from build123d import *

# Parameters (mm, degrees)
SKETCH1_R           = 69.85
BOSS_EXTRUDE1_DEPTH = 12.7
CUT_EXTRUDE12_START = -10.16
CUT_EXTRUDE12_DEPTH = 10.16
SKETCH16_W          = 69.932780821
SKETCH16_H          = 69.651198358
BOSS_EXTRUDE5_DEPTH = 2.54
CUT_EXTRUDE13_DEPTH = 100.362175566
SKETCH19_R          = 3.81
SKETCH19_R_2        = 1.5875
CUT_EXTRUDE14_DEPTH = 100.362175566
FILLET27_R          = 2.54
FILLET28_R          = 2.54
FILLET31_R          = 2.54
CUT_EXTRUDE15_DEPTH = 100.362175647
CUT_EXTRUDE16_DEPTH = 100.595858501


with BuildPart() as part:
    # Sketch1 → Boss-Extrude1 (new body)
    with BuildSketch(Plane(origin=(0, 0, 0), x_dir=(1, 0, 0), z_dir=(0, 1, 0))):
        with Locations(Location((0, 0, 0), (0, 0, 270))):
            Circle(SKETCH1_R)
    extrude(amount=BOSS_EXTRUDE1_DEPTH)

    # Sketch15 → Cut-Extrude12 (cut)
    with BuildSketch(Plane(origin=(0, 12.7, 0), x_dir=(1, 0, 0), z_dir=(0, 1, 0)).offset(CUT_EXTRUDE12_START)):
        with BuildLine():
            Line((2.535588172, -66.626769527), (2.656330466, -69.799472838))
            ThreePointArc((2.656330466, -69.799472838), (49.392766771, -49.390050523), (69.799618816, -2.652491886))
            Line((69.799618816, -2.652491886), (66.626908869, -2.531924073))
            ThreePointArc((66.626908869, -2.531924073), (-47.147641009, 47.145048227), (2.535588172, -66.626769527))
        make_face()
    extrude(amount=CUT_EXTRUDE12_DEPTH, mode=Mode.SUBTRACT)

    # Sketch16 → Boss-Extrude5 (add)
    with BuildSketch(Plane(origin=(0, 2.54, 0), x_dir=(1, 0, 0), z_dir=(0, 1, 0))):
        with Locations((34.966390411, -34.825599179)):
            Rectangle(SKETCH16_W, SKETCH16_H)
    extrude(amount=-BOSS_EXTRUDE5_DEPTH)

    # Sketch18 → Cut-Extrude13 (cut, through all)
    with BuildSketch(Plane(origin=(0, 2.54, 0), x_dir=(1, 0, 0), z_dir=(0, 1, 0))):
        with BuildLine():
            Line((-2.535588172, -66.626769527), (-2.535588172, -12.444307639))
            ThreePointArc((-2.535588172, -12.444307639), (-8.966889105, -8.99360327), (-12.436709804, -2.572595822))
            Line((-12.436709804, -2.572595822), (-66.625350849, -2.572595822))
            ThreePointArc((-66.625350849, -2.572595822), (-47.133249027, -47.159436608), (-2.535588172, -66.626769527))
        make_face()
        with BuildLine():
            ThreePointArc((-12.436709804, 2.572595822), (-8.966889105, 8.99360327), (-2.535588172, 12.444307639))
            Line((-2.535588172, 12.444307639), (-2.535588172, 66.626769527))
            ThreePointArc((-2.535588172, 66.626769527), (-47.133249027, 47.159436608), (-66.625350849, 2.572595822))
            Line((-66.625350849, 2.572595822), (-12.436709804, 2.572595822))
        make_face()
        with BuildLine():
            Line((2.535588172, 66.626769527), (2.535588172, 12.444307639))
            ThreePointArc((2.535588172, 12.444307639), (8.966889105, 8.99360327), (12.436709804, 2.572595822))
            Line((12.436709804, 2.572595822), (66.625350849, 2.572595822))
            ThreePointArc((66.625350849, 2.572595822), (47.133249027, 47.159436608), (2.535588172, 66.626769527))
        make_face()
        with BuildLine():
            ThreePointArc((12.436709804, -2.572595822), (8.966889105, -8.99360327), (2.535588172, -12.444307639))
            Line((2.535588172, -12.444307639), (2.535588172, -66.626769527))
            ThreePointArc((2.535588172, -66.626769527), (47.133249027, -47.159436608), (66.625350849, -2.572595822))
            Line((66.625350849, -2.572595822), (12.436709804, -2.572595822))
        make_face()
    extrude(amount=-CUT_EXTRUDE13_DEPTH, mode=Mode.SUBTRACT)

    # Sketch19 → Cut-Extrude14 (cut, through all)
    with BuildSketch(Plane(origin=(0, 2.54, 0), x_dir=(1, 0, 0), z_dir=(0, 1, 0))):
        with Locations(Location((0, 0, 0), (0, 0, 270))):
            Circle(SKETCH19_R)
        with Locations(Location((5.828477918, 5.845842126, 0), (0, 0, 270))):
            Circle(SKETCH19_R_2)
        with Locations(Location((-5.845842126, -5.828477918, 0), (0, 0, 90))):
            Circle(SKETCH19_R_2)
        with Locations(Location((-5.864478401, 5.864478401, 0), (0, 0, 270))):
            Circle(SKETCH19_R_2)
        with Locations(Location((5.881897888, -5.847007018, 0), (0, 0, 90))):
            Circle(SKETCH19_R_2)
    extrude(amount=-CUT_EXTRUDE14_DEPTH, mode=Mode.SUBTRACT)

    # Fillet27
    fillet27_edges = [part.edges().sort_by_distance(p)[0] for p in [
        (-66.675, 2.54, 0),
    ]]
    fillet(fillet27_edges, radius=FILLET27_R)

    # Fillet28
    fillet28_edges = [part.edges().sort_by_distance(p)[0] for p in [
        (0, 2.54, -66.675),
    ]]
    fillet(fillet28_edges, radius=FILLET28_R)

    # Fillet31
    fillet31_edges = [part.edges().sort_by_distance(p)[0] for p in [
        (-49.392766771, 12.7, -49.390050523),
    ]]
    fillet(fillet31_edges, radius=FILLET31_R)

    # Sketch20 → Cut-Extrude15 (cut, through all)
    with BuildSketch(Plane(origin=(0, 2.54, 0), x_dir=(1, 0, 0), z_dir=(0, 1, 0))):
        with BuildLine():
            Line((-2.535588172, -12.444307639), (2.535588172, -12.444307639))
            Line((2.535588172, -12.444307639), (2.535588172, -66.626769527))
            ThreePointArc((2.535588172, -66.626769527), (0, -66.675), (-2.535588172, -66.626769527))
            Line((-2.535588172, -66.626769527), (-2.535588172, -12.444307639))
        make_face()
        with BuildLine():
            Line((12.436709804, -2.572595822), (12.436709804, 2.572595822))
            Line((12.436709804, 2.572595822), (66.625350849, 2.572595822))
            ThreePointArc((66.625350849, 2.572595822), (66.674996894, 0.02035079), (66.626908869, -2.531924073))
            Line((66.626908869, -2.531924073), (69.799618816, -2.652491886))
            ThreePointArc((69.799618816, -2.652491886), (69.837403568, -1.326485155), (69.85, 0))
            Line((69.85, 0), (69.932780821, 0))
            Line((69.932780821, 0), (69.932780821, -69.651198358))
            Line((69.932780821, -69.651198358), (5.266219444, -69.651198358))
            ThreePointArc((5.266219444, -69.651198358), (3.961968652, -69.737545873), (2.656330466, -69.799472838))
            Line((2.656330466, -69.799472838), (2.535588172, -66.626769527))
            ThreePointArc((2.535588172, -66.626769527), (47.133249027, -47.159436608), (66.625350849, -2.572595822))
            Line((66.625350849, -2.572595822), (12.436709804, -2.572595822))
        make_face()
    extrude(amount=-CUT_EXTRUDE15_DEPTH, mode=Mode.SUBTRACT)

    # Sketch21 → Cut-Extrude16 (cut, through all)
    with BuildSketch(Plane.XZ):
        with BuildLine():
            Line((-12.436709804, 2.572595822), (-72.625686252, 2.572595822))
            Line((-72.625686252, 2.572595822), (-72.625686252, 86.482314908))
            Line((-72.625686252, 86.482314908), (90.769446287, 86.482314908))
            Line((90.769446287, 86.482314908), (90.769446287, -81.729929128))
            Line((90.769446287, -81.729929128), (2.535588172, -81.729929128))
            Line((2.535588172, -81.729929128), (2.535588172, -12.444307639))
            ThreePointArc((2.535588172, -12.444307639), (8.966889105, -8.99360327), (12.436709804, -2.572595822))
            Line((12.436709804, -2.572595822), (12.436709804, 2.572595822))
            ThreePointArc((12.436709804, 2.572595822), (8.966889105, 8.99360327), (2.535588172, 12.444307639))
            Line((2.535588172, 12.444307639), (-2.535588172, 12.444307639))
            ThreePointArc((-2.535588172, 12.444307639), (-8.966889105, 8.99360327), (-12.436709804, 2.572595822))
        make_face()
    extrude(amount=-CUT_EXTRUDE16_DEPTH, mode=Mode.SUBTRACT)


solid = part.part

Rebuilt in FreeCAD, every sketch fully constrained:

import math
import FreeCAD as App
import Part
import Sketcher

V = App.Vector
Q = App.Units.Quantity


def edges_at(feature, points):
    """Names of the edges that pass closest to the given points."""
    edges = feature.Shape.Edges
    near = lambda p: min(range(len(edges)), key=lambda i: edges[i].distToShape(Part.Vertex(*p))[0])
    return sorted({f"Edge{near(p) + 1}" for p in points})

doc = App.newDocument("Part")
params = doc.addObject("Spreadsheet::Sheet", "Params")
for row, (alias, value) in enumerate([
    ("sketch1_diameter", "5.5 in"),
    ("pad1_length", "0.5 in"),
    ("sketch2_radius", "2.75 in"),
    ("sketch2_radius2", "2.625 in"),
    ("pocket1_length", "0.4 in"),
    ("pad2_length", "0.1 in"),
    ("sketch4_radius", "0.5 in"),
    ("sketch4_radius2", "2.625 in"),
    ("sketch5_diameter", "0.3 in"),
    ("sketch5_diameter2", "0.125 in"),
    ("fillet_radius", "0.1 in"),
    ("fillet2_radius", "0.1 in"),
    ("fillet3_radius", "0.1 in"),
    ("sketch6_radius", "2.75 in"),
    ("sketch6_radius2", "2.625 in"),
    ("sketch7_radius", "0.5 in"),
], start=1):
    params.set(f"A{row}", alias)
    params.set(f"B{row}", "=" + value)
    params.setAlias(f"B{row}", alias)

body = doc.addObject("PartDesign::Body", "Body")

# Sketch on XZ plane
sketch1 = doc.addObject("Sketcher::SketchObject", "Sketch")
body.addObject(sketch1)
sketch1.AttachmentSupport = (doc.XZ_Plane, [""])
sketch1.MapMode = "FlatFace"
sketch1.addGeometry(Part.Circle(V(0, 0, 0), V(0, 0, 1), 70), False)
sketch1.addConstraint([
    Sketcher.Constraint("Coincident", 0, 3, -1, 1),
    Sketcher.Constraint("Diameter", 0, Q("5.5 in")),
])
sketch1.setExpression("Constraints[1]", "Params.sketch1_diameter")
pad1 = doc.addObject("PartDesign::Pad", "Pad")
body.addObject(pad1)
pad1.Profile = sketch1
pad1.setExpression("Length", "Params.pad1_length")
pad1.Reversed = True

# Sketch on XZ plane
sketch2 = doc.addObject("Sketcher::SketchObject", "Sketch001")
body.addObject(sketch2)
sketch2.AttachmentSupport = (doc.XZ_Plane, [""])
sketch2.MapMode = "FlatFace"
sketch2.AttachmentOffset = App.Placement(V(0, 0, -0.1 * 25.4), App.Rotation())
sketch2.addGeometry([
    Part.LineSegment(V(2.5, 66.6, 0), V(2.7, 69.8, 0)),
    Part.ArcOfCircle(Part.Circle(V(0, 0, 0), V(0, 0, 1), 69.9), math.radians(2), math.radians(88)),
    Part.LineSegment(V(69.8, 2.7, 0), V(66.6, 2.5, 0)),
    Part.ArcOfCircle(Part.Circle(V(0, 0, 0), V(0, 0, 1), 66.7), math.radians(88), math.radians(362)),
], False)
sketch2.addConstraint([
    Sketcher.Constraint("Coincident", 0, 2, 1, 2),
    Sketcher.Constraint("Coincident", 1, 1, 2, 1),
    Sketcher.Constraint("Coincident", 2, 2, 3, 2),
    Sketcher.Constraint("Coincident", 3, 1, 0, 1),
    Sketcher.Constraint("Coincident", 1, 3, -1, 1),
    Sketcher.Constraint("Coincident", 3, 3, -1, 1),
    Sketcher.Constraint("Radius", 1, Q("2.75 in")),
    Sketcher.Constraint("Radius", 3, Q("2.625 in")),
    Sketcher.Constraint("DistanceX", -1, 1, 0, 2, Q("2.65633 mm")),
    Sketcher.Constraint("DistanceX", -1, 1, 1, 1, Q("69.799619 mm")),
    Sketcher.Constraint("DistanceX", -1, 1, 2, 2, Q("66.626909 mm")),
    Sketcher.Constraint("DistanceX", -1, 1, 3, 1, Q("2.535588 mm")),
])
sketch2.setExpression("Constraints[6]", "Params.sketch2_radius")
sketch2.setExpression("Constraints[7]", "Params.sketch2_radius2")
pocket1 = doc.addObject("PartDesign::Pocket", "Pocket")
body.addObject(pocket1)
pocket1.Profile = sketch2
pocket1.setExpression("Length", "Params.pocket1_length")

# Sketch on XZ plane
sketch3 = doc.addObject("Sketcher::SketchObject", "Sketch002")
body.addObject(sketch3)
sketch3.AttachmentSupport = (doc.XZ_Plane, [""])
sketch3.MapMode = "FlatFace"
sketch3.AttachmentOffset = App.Placement(V(0, 0, -0.1 * 25.4), App.Rotation())
sketch3.addGeometry([
    Part.LineSegment(V(0, 0, 0), V(0, 70, 0)),
    Part.LineSegment(V(0, 70, 0), V(70, 70, 0)),
    Part.LineSegment(V(70, 70, 0), V(70, 0, 0)),
    Part.LineSegment(V(70, 0, 0), V(0, 0, 0)),
], False)
sketch3.addConstraint([
    Sketcher.Constraint("Coincident", 0, 2, 1, 1),
    Sketcher.Constraint("Coincident", 1, 2, 2, 1),
    Sketcher.Constraint("Coincident", 2, 2, 3, 1),
    Sketcher.Constraint("Coincident", 3, 2, 0, 1),
    Sketcher.Constraint("Vertical", 0),
    Sketcher.Constraint("Horizontal", 1),
    Sketcher.Constraint("Vertical", 2),
    Sketcher.Constraint("Horizontal", 3),
    Sketcher.Constraint("Coincident", 3, 2, -1, 1),
    Sketcher.Constraint("DistanceY", 0, 1, 0, 2, Q("69.651198 mm")),
    Sketcher.Constraint("DistanceX", 1, 1, 1, 2, Q("69.932781 mm")),
])
pad2 = doc.addObject("PartDesign::Pad", "Pad001")
body.addObject(pad2)
pad2.Profile = sketch3
pad2.setExpression("Length", "Params.pad2_length")

# Sketch on XZ plane
sketch4 = doc.addObject("Sketcher::SketchObject", "Sketch003")
body.addObject(sketch4)
sketch4.AttachmentSupport = (doc.XZ_Plane, [""])
sketch4.MapMode = "FlatFace"
sketch4.AttachmentOffset = App.Placement(V(0, 0, -0.1 * 25.4), App.Rotation())
sketch4.addGeometry([
    Part.LineSegment(V(-3, 67, 0), V(-3, 12, 0)),  # 0
    Part.ArcOfCircle(Part.Circle(V(0, 0, 0), V(0, 0, 1), 13), math.radians(102), math.radians(168)),  # 1
    Part.LineSegment(V(-12, 3, 0), V(-67, 3, 0)),  # 2
    Part.ArcOfCircle(Part.Circle(V(0, 0, 0), V(0, 0, 1), 67), math.radians(92), math.radians(178)),  # 3
    Part.ArcOfCircle(Part.Circle(V(0, 0, 0), V(0, 0, 1), 13), math.radians(-168), math.radians(-102)),  # 4
    Part.LineSegment(V(-3, -12, 0), V(-3, -67, 0)),  # 5
    Part.ArcOfCircle(Part.Circle(V(0, 0, 0), V(0, 0, 1), 67), math.radians(-178), math.radians(-92)),  # 6
    Part.LineSegment(V(-67, -3, 0), V(-12, -3, 0)),  # 7
    Part.LineSegment(V(3, -67, 0), V(3, -12, 0)),  # 8
    Part.ArcOfCircle(Part.Circle(V(0, 0, 0), V(0, 0, 1), 13), math.radians(-78), math.radians(-12)),  # 9
    Part.LineSegment(V(12, -3, 0), V(67, -3, 0)),  # 10
    Part.ArcOfCircle(Part.Circle(V(0, 0, 0), V(0, 0, 1), 67), math.radians(-88), math.radians(-2)),  # 11
    Part.ArcOfCircle(Part.Circle(V(0, 0, 0), V(0, 0, 1), 13), math.radians(12), math.radians(78)),  # 12
    Part.LineSegment(V(3, 12, 0), V(3, 67, 0)),  # 13
    Part.ArcOfCircle(Part.Circle(V(0, 0, 0), V(0, 0, 1), 67), math.radians(2), math.radians(88)),  # 14
    Part.LineSegment(V(67, 3, 0), V(12, 3, 0)),  # 15
], False)
sketch4.addConstraint([
    Sketcher.Constraint("Coincident", 0, 2, 1, 1),
    Sketcher.Constraint("Coincident", 1, 2, 2, 1),
    Sketcher.Constraint("Coincident", 2, 2, 3, 2),
    Sketcher.Constraint("Coincident", 3, 1, 0, 1),
    Sketcher.Constraint("Coincident", 4, 2, 5, 1),
    Sketcher.Constraint("Coincident", 5, 2, 6, 2),
    Sketcher.Constraint("Coincident", 6, 1, 7, 1),
    Sketcher.Constraint("Coincident", 7, 2, 4, 1),
    Sketcher.Constraint("Coincident", 8, 2, 9, 1),
    Sketcher.Constraint("Coincident", 9, 2, 10, 1),
    Sketcher.Constraint("Coincident", 10, 2, 11, 2),
    Sketcher.Constraint("Coincident", 11, 1, 8, 1),
    Sketcher.Constraint("Coincident", 12, 2, 13, 1),
    Sketcher.Constraint("Coincident", 13, 2, 14, 2),
    Sketcher.Constraint("Coincident", 14, 1, 15, 1),
    Sketcher.Constraint("Coincident", 15, 2, 12, 1),
    Sketcher.Constraint("Vertical", 0),
    Sketcher.Constraint("Horizontal", 2),
    Sketcher.Constraint("Vertical", 5),
    Sketcher.Constraint("Horizontal", 7),
    Sketcher.Constraint("Vertical", 8),
    Sketcher.Constraint("Horizontal", 10),
    Sketcher.Constraint("Vertical", 13),
    Sketcher.Constraint("Horizontal", 15),
    Sketcher.Constraint("Coincident", 1, 3, -1, 1),
    Sketcher.Constraint("Coincident", 3, 3, -1, 1),
    Sketcher.Constraint("Coincident", 4, 3, -1, 1),
    Sketcher.Constraint("Coincident", 6, 3, -1, 1),
    Sketcher.Constraint("Coincident", 9, 3, -1, 1),
    Sketcher.Constraint("Coincident", 11, 3, -1, 1),
    Sketcher.Constraint("Coincident", 12, 3, -1, 1),
    Sketcher.Constraint("Coincident", 14, 3, -1, 1),
    Sketcher.Constraint("Equal", 1, 4),
    Sketcher.Constraint("Equal", 3, 6),
    Sketcher.Constraint("Equal", 4, 9),
    Sketcher.Constraint("Equal", 6, 11),
    Sketcher.Constraint("Equal", 9, 12),
    Sketcher.Constraint("Equal", 11, 14),
    Sketcher.Constraint("Horizontal", 4, 2, 8, 2),
    Sketcher.Constraint("Horizontal", 7, 2, 9, 2),
    Sketcher.Constraint("Horizontal", 0, 2, 12, 2),
    Sketcher.Constraint("Horizontal", 2, 2, 14, 1),
    Sketcher.Constraint("Vertical", 3, 1, 4, 2),
    Sketcher.Constraint("Vertical", 2, 2, 6, 1),
    Sketcher.Constraint("Radius", 1, Q("0.5 in")),
    Sketcher.Constraint("Radius", 3, Q("2.625 in")),
    Sketcher.Constraint("DistanceX", 2, 2, 2, 1, Q("54.188641 mm")),
    Sketcher.Constraint("DistanceY", 0, 2, 0, 1, Q("54.182462 mm")),
])
sketch4.setExpression("Constraints[44]", "Params.sketch4_radius")
sketch4.setExpression("Constraints[45]", "Params.sketch4_radius2")
pocket2 = doc.addObject("PartDesign::Pocket", "Pocket001")
body.addObject(pocket2)
pocket2.Profile = sketch4
pocket2.Type = "ThroughAll"
pocket2.Reversed = True

# Sketch on XZ plane
sketch5 = doc.addObject("Sketcher::SketchObject", "Sketch004")
body.addObject(sketch5)
sketch5.AttachmentSupport = (doc.XZ_Plane, [""])
sketch5.MapMode = "FlatFace"
sketch5.AttachmentOffset = App.Placement(V(0, 0, -0.1 * 25.4), App.Rotation())
sketch5.addGeometry([
    Part.Circle(V(0, 0, 0), V(0, 0, 1), 3.8),  # 0
    Part.Circle(V(5.8, -5.8, 0), V(0, 0, 1), 1.6),  # 1
    Part.Circle(V(-5.8, 5.8, 0), V(0, 0, 1), 1.6),  # 2
    Part.Circle(V(-5.9, -5.9, 0), V(0, 0, 1), 1.6),  # 3
    Part.Circle(V(5.9, 5.8, 0), V(0, 0, 1), 1.6),  # 4
], False)
sketch5.addConstraint([
    Sketcher.Constraint("Coincident", 0, 3, -1, 1),
    Sketcher.Constraint("Equal", 1, 2),
    Sketcher.Constraint("Equal", 2, 3),
    Sketcher.Constraint("Equal", 3, 4),
    Sketcher.Constraint("Diameter", 0, Q("0.3 in")),
    Sketcher.Constraint("Diameter", 1, Q("0.125 in")),
    Sketcher.Constraint("DistanceX", 3, 3, -1, 1, Q("5.864478 mm")),
    Sketcher.Constraint("DistanceY", 3, 3, -1, 1, Q("5.864478 mm")),
    Sketcher.Constraint("DistanceX", 2, 3, 1, 3, Q("11.67432 mm")),
    Sketcher.Constraint("DistanceY", 1, 3, 2, 3, Q("11.67432 mm")),
    Sketcher.Constraint("DistanceX", 1, 3, 4, 3, Q("0.05342 mm")),
    Sketcher.Constraint("DistanceY", 1, 3, 4, 3, Q("11.692849 mm")),
    Sketcher.Constraint("DistanceX", -1, 1, 1, 3, Q("5.828478 mm")),
    Sketcher.Constraint("DistanceY", 1, 3, -1, 1, Q("5.845842 mm")),
])
sketch5.setExpression("Constraints[4]", "Params.sketch5_diameter")
sketch5.setExpression("Constraints[5]", "Params.sketch5_diameter2")
pocket3 = doc.addObject("PartDesign::Pocket", "Pocket002")
body.addObject(pocket3)
pocket3.Profile = sketch5
pocket3.Type = "ThroughAll"
pocket3.Reversed = True
doc.recompute()

fillet = doc.addObject("PartDesign::Fillet", "Fillet")
body.addObject(fillet)
fillet.Base = (pocket3, edges_at(pocket3, [(-66.675, 2.54, 0)]))
fillet.setExpression("Radius", "Params.fillet_radius")
doc.recompute()

fillet2 = doc.addObject("PartDesign::Fillet", "Fillet001")
body.addObject(fillet2)
fillet2.Base = (fillet, edges_at(fillet, [(0, 2.54, -66.675)]))
fillet2.setExpression("Radius", "Params.fillet2_radius")
doc.recompute()

fillet3 = doc.addObject("PartDesign::Fillet", "Fillet002")
body.addObject(fillet3)
fillet3.Base = (fillet2, edges_at(fillet2, [(-49.393, 12.7, -49.39)]))
fillet3.setExpression("Radius", "Params.fillet3_radius")

# Sketch on XZ plane
sketch6 = doc.addObject("Sketcher::SketchObject", "Sketch005")
body.addObject(sketch6)
sketch6.AttachmentSupport = (doc.XZ_Plane, [""])
sketch6.MapMode = "FlatFace"
sketch6.AttachmentOffset = App.Placement(V(0, 0, -0.1 * 25.4), App.Rotation())
sketch6.addGeometry([
    Part.LineSegment(V(2.54, 12.44, 0), V(-2.54, 12.44, 0)),  # 0
    Part.LineSegment(V(-2.54, 12.44, 0), V(-2.54, 66.63, 0)),  # 1
    Part.ArcOfCircle(Part.Circle(V(0, 0, 0), V(0, 0, 1), 66.67), math.radians(87.82), math.radians(92.18)),  # 2
    Part.LineSegment(V(2.54, 66.63, 0), V(2.54, 12.44, 0)),  # 3
    Part.LineSegment(V(12.44, -2.57, 0), V(12.44, 2.57, 0)),  # 4
    Part.LineSegment(V(12.44, 2.57, 0), V(66.63, 2.57, 0)),  # 5
    Part.ArcOfCircle(Part.Circle(V(0, 0, 0), V(0, 0, 1), 66.67), math.radians(2), math.radians(88)),  # 6
    Part.LineSegment(V(2.54, 66.63, 0), V(2.66, 69.8, 0)),  # 7
    Part.ArcOfCircle(Part.Circle(V(0, 0, 0), V(0, 0, 1), 69.85), math.radians(85.68), math.radians(87.82)),  # 8
    Part.LineSegment(V(5.27, 69.65, 0), V(69.93, 69.65, 0)),  # 9
    Part.LineSegment(V(69.93, 69.65, 0), V(69.93, 0, 0)),  # 10
    Part.LineSegment(V(69.93, 0, 0), V(69.85, 0, 0)),  # 11
    Part.ArcOfCircle(Part.Circle(V(0, 0, 0), V(0, 0, 1), 69.85), math.radians(0), math.radians(2.18)),  # 12
    Part.LineSegment(V(69.8, 2.65, 0), V(66.63, 2.53, 0)),  # 13
    Part.ArcOfCircle(Part.Circle(V(0, 0, 0), V(0, 0, 1), 66.68), math.radians(-2.21), math.radians(2.18)),  # 14
    Part.LineSegment(V(66.63, -2.57, 0), V(12.44, -2.57, 0)),  # 15
], False)
sketch6.addConstraint([
    Sketcher.Constraint("Coincident", 0, 2, 1, 1),
    Sketcher.Constraint("Coincident", 1, 2, 2, 2),
    Sketcher.Constraint("Coincident", 2, 1, 3, 1),
    Sketcher.Constraint("Coincident", 3, 2, 0, 1),
    Sketcher.Constraint("Coincident", 4, 2, 5, 1),
    Sketcher.Constraint("Coincident", 5, 2, 6, 1),
    Sketcher.Constraint("Coincident", 6, 2, 7, 1),
    Sketcher.Constraint("Coincident", 7, 2, 8, 2),
    Sketcher.Constraint("Coincident", 8, 1, 9, 1),
    Sketcher.Constraint("Coincident", 9, 2, 10, 1),
    Sketcher.Constraint("Coincident", 10, 2, 11, 1),
    Sketcher.Constraint("Coincident", 11, 2, 12, 1),
    Sketcher.Constraint("Coincident", 12, 2, 13, 1),
    Sketcher.Constraint("Coincident", 13, 2, 14, 2),
    Sketcher.Constraint("Coincident", 14, 1, 15, 1),
    Sketcher.Constraint("Coincident", 15, 2, 4, 1),
    Sketcher.Constraint("Horizontal", 0),
    Sketcher.Constraint("Vertical", 1),
    Sketcher.Constraint("Vertical", 3),
    Sketcher.Constraint("Vertical", 4),
    Sketcher.Constraint("Horizontal", 5),
    Sketcher.Constraint("Horizontal", 9),
    Sketcher.Constraint("Vertical", 10),
    Sketcher.Constraint("Horizontal", 11),
    Sketcher.Constraint("Horizontal", 15),
    Sketcher.Constraint("Coincident", 2, 3, -1, 1),
    Sketcher.Constraint("Coincident", 6, 3, -1, 1),
    Sketcher.Constraint("Coincident", 8, 3, -1, 1),
    Sketcher.Constraint("Coincident", 12, 3, -1, 1),
    Sketcher.Constraint("Coincident", 14, 3, -1, 1),
    Sketcher.Constraint("Coincident", 6, 2, 2, 1),
    Sketcher.Constraint("Equal", 6, 14),
    Sketcher.Constraint("PointOnObject", 10, 2, -1),
    Sketcher.Constraint("Horizontal", 1, 2, 2, 1),
    Sketcher.Constraint("Vertical", 5, 2, 14, 1),
    Sketcher.Constraint("Equal", 7, 13),
    Sketcher.Constraint("Radius", 8, Q("2.75 in")),
    Sketcher.Constraint("Radius", 2, Q("2.625 in")),
    Sketcher.Constraint("DistanceY", 10, 2, 10, 1, Q("69.651198 mm")),
    Sketcher.Constraint("DistanceX", 5, 1, 5, 2, Q("54.188641 mm")),
    Sketcher.Constraint("DistanceX", 9, 1, 9, 2, Q("64.666561 mm")),
    Sketcher.Constraint("DistanceY", 1, 1, 1, 2, Q("54.182462 mm")),
    Sketcher.Constraint("DistanceY", 4, 1, 4, 2, Q("5.145192 mm")),
    Sketcher.Constraint("DistanceX", 4, 2, 13, 2, Q("54.190199 mm")),
    Sketcher.Constraint("DistanceX", 0, 2, 0, 1, Q("5.071176 mm")),
    Sketcher.Constraint("DistanceX", -1, 1, 7, 2, Q("2.65633 mm")),
    Sketcher.Constraint("DistanceX", -1, 1, 12, 2, Q("69.799619 mm")),
])
sketch6.setExpression("Constraints[36]", "Params.sketch6_radius")
sketch6.setExpression("Constraints[37]", "Params.sketch6_radius2")
pocket4 = doc.addObject("PartDesign::Pocket", "Pocket003")
body.addObject(pocket4)
pocket4.Profile = sketch6
pocket4.Type = "ThroughAll"
pocket4.Reversed = True

# Sketch on XZ plane
sketch7 = doc.addObject("Sketcher::SketchObject", "Sketch006")
body.addObject(sketch7)
sketch7.AttachmentSupport = (doc.XZ_Plane, [""])
sketch7.MapMode = "FlatFace"
sketch7.addGeometry([
    Part.LineSegment(V(-73, 3, 0), V(-12, 3, 0)),  # 0
    Part.ArcOfCircle(Part.Circle(V(0, 0, 0), V(0, 0, 1), 13), math.radians(102), math.radians(168)),  # 1
    Part.LineSegment(V(-3, 12, 0), V(3, 12, 0)),  # 2
    Part.ArcOfCircle(Part.Circle(V(0, 0, 0), V(0, 0, 1), 13), math.radians(12), math.radians(78)),  # 3
    Part.LineSegment(V(12, 3, 0), V(12, -3, 0)),  # 4
    Part.ArcOfCircle(Part.Circle(V(0, 0, 0), V(0, 0, 1), 13), math.radians(-78), math.radians(-12)),  # 5
    Part.LineSegment(V(3, -12, 0), V(3, -82, 0)),  # 6
    Part.LineSegment(V(3, -82, 0), V(91, -82, 0)),  # 7
    Part.LineSegment(V(91, -82, 0), V(91, 86, 0)),  # 8
    Part.LineSegment(V(91, 86, 0), V(-73, 86, 0)),  # 9
    Part.LineSegment(V(-73, 86, 0), V(-73, 3, 0)),  # 10
], False)
sketch7.addConstraint([
    Sketcher.Constraint("Coincident", 0, 2, 1, 2),
    Sketcher.Constraint("Coincident", 1, 1, 2, 1),
    Sketcher.Constraint("Coincident", 2, 2, 3, 2),
    Sketcher.Constraint("Coincident", 3, 1, 4, 1),
    Sketcher.Constraint("Coincident", 4, 2, 5, 2),
    Sketcher.Constraint("Coincident", 5, 1, 6, 1),
    Sketcher.Constraint("Coincident", 6, 2, 7, 1),
    Sketcher.Constraint("Coincident", 7, 2, 8, 1),
    Sketcher.Constraint("Coincident", 8, 2, 9, 1),
    Sketcher.Constraint("Coincident", 9, 2, 10, 1),
    Sketcher.Constraint("Coincident", 10, 2, 0, 1),
    Sketcher.Constraint("Horizontal", 0),
    Sketcher.Constraint("Horizontal", 2),
    Sketcher.Constraint("Vertical", 4),
    Sketcher.Constraint("Vertical", 6),
    Sketcher.Constraint("Horizontal", 7),
    Sketcher.Constraint("Vertical", 8),
    Sketcher.Constraint("Horizontal", 9),
    Sketcher.Constraint("Vertical", 10),
    Sketcher.Constraint("Coincident", 1, 3, -1, 1),
    Sketcher.Constraint("Coincident", 3, 3, -1, 1),
    Sketcher.Constraint("Coincident", 5, 3, -1, 1),
    Sketcher.Constraint("Equal", 1, 3),
    Sketcher.Constraint("Equal", 3, 5),
    Sketcher.Constraint("Horizontal", 0, 2, 3, 1),
    Sketcher.Constraint("Vertical", 2, 2, 5, 1),
    Sketcher.Constraint("Radius", 1, Q("0.5 in")),
    Sketcher.Constraint("DistanceX", 7, 1, 7, 2, Q("88.233858 mm")),
    Sketcher.Constraint("DistanceY", 4, 2, 4, 1, Q("5.145192 mm")),
    Sketcher.Constraint("DistanceY", 6, 2, 6, 1, Q("69.285621 mm")),
    Sketcher.Constraint("DistanceY", 10, 2, 10, 1, Q("83.909719 mm")),
    Sketcher.Constraint("DistanceX", 9, 2, 1, 1, Q("70.090098 mm")),
    Sketcher.Constraint("DistanceX", 0, 1, 0, 2, Q("60.188976 mm")),
])
sketch7.setExpression("Constraints[26]", "Params.sketch7_radius")
pocket5 = doc.addObject("PartDesign::Pocket", "Pocket004")
body.addObject(pocket5)
pocket5.Profile = sketch7
pocket5.Type = "ThroughAll"

doc.recompute()
